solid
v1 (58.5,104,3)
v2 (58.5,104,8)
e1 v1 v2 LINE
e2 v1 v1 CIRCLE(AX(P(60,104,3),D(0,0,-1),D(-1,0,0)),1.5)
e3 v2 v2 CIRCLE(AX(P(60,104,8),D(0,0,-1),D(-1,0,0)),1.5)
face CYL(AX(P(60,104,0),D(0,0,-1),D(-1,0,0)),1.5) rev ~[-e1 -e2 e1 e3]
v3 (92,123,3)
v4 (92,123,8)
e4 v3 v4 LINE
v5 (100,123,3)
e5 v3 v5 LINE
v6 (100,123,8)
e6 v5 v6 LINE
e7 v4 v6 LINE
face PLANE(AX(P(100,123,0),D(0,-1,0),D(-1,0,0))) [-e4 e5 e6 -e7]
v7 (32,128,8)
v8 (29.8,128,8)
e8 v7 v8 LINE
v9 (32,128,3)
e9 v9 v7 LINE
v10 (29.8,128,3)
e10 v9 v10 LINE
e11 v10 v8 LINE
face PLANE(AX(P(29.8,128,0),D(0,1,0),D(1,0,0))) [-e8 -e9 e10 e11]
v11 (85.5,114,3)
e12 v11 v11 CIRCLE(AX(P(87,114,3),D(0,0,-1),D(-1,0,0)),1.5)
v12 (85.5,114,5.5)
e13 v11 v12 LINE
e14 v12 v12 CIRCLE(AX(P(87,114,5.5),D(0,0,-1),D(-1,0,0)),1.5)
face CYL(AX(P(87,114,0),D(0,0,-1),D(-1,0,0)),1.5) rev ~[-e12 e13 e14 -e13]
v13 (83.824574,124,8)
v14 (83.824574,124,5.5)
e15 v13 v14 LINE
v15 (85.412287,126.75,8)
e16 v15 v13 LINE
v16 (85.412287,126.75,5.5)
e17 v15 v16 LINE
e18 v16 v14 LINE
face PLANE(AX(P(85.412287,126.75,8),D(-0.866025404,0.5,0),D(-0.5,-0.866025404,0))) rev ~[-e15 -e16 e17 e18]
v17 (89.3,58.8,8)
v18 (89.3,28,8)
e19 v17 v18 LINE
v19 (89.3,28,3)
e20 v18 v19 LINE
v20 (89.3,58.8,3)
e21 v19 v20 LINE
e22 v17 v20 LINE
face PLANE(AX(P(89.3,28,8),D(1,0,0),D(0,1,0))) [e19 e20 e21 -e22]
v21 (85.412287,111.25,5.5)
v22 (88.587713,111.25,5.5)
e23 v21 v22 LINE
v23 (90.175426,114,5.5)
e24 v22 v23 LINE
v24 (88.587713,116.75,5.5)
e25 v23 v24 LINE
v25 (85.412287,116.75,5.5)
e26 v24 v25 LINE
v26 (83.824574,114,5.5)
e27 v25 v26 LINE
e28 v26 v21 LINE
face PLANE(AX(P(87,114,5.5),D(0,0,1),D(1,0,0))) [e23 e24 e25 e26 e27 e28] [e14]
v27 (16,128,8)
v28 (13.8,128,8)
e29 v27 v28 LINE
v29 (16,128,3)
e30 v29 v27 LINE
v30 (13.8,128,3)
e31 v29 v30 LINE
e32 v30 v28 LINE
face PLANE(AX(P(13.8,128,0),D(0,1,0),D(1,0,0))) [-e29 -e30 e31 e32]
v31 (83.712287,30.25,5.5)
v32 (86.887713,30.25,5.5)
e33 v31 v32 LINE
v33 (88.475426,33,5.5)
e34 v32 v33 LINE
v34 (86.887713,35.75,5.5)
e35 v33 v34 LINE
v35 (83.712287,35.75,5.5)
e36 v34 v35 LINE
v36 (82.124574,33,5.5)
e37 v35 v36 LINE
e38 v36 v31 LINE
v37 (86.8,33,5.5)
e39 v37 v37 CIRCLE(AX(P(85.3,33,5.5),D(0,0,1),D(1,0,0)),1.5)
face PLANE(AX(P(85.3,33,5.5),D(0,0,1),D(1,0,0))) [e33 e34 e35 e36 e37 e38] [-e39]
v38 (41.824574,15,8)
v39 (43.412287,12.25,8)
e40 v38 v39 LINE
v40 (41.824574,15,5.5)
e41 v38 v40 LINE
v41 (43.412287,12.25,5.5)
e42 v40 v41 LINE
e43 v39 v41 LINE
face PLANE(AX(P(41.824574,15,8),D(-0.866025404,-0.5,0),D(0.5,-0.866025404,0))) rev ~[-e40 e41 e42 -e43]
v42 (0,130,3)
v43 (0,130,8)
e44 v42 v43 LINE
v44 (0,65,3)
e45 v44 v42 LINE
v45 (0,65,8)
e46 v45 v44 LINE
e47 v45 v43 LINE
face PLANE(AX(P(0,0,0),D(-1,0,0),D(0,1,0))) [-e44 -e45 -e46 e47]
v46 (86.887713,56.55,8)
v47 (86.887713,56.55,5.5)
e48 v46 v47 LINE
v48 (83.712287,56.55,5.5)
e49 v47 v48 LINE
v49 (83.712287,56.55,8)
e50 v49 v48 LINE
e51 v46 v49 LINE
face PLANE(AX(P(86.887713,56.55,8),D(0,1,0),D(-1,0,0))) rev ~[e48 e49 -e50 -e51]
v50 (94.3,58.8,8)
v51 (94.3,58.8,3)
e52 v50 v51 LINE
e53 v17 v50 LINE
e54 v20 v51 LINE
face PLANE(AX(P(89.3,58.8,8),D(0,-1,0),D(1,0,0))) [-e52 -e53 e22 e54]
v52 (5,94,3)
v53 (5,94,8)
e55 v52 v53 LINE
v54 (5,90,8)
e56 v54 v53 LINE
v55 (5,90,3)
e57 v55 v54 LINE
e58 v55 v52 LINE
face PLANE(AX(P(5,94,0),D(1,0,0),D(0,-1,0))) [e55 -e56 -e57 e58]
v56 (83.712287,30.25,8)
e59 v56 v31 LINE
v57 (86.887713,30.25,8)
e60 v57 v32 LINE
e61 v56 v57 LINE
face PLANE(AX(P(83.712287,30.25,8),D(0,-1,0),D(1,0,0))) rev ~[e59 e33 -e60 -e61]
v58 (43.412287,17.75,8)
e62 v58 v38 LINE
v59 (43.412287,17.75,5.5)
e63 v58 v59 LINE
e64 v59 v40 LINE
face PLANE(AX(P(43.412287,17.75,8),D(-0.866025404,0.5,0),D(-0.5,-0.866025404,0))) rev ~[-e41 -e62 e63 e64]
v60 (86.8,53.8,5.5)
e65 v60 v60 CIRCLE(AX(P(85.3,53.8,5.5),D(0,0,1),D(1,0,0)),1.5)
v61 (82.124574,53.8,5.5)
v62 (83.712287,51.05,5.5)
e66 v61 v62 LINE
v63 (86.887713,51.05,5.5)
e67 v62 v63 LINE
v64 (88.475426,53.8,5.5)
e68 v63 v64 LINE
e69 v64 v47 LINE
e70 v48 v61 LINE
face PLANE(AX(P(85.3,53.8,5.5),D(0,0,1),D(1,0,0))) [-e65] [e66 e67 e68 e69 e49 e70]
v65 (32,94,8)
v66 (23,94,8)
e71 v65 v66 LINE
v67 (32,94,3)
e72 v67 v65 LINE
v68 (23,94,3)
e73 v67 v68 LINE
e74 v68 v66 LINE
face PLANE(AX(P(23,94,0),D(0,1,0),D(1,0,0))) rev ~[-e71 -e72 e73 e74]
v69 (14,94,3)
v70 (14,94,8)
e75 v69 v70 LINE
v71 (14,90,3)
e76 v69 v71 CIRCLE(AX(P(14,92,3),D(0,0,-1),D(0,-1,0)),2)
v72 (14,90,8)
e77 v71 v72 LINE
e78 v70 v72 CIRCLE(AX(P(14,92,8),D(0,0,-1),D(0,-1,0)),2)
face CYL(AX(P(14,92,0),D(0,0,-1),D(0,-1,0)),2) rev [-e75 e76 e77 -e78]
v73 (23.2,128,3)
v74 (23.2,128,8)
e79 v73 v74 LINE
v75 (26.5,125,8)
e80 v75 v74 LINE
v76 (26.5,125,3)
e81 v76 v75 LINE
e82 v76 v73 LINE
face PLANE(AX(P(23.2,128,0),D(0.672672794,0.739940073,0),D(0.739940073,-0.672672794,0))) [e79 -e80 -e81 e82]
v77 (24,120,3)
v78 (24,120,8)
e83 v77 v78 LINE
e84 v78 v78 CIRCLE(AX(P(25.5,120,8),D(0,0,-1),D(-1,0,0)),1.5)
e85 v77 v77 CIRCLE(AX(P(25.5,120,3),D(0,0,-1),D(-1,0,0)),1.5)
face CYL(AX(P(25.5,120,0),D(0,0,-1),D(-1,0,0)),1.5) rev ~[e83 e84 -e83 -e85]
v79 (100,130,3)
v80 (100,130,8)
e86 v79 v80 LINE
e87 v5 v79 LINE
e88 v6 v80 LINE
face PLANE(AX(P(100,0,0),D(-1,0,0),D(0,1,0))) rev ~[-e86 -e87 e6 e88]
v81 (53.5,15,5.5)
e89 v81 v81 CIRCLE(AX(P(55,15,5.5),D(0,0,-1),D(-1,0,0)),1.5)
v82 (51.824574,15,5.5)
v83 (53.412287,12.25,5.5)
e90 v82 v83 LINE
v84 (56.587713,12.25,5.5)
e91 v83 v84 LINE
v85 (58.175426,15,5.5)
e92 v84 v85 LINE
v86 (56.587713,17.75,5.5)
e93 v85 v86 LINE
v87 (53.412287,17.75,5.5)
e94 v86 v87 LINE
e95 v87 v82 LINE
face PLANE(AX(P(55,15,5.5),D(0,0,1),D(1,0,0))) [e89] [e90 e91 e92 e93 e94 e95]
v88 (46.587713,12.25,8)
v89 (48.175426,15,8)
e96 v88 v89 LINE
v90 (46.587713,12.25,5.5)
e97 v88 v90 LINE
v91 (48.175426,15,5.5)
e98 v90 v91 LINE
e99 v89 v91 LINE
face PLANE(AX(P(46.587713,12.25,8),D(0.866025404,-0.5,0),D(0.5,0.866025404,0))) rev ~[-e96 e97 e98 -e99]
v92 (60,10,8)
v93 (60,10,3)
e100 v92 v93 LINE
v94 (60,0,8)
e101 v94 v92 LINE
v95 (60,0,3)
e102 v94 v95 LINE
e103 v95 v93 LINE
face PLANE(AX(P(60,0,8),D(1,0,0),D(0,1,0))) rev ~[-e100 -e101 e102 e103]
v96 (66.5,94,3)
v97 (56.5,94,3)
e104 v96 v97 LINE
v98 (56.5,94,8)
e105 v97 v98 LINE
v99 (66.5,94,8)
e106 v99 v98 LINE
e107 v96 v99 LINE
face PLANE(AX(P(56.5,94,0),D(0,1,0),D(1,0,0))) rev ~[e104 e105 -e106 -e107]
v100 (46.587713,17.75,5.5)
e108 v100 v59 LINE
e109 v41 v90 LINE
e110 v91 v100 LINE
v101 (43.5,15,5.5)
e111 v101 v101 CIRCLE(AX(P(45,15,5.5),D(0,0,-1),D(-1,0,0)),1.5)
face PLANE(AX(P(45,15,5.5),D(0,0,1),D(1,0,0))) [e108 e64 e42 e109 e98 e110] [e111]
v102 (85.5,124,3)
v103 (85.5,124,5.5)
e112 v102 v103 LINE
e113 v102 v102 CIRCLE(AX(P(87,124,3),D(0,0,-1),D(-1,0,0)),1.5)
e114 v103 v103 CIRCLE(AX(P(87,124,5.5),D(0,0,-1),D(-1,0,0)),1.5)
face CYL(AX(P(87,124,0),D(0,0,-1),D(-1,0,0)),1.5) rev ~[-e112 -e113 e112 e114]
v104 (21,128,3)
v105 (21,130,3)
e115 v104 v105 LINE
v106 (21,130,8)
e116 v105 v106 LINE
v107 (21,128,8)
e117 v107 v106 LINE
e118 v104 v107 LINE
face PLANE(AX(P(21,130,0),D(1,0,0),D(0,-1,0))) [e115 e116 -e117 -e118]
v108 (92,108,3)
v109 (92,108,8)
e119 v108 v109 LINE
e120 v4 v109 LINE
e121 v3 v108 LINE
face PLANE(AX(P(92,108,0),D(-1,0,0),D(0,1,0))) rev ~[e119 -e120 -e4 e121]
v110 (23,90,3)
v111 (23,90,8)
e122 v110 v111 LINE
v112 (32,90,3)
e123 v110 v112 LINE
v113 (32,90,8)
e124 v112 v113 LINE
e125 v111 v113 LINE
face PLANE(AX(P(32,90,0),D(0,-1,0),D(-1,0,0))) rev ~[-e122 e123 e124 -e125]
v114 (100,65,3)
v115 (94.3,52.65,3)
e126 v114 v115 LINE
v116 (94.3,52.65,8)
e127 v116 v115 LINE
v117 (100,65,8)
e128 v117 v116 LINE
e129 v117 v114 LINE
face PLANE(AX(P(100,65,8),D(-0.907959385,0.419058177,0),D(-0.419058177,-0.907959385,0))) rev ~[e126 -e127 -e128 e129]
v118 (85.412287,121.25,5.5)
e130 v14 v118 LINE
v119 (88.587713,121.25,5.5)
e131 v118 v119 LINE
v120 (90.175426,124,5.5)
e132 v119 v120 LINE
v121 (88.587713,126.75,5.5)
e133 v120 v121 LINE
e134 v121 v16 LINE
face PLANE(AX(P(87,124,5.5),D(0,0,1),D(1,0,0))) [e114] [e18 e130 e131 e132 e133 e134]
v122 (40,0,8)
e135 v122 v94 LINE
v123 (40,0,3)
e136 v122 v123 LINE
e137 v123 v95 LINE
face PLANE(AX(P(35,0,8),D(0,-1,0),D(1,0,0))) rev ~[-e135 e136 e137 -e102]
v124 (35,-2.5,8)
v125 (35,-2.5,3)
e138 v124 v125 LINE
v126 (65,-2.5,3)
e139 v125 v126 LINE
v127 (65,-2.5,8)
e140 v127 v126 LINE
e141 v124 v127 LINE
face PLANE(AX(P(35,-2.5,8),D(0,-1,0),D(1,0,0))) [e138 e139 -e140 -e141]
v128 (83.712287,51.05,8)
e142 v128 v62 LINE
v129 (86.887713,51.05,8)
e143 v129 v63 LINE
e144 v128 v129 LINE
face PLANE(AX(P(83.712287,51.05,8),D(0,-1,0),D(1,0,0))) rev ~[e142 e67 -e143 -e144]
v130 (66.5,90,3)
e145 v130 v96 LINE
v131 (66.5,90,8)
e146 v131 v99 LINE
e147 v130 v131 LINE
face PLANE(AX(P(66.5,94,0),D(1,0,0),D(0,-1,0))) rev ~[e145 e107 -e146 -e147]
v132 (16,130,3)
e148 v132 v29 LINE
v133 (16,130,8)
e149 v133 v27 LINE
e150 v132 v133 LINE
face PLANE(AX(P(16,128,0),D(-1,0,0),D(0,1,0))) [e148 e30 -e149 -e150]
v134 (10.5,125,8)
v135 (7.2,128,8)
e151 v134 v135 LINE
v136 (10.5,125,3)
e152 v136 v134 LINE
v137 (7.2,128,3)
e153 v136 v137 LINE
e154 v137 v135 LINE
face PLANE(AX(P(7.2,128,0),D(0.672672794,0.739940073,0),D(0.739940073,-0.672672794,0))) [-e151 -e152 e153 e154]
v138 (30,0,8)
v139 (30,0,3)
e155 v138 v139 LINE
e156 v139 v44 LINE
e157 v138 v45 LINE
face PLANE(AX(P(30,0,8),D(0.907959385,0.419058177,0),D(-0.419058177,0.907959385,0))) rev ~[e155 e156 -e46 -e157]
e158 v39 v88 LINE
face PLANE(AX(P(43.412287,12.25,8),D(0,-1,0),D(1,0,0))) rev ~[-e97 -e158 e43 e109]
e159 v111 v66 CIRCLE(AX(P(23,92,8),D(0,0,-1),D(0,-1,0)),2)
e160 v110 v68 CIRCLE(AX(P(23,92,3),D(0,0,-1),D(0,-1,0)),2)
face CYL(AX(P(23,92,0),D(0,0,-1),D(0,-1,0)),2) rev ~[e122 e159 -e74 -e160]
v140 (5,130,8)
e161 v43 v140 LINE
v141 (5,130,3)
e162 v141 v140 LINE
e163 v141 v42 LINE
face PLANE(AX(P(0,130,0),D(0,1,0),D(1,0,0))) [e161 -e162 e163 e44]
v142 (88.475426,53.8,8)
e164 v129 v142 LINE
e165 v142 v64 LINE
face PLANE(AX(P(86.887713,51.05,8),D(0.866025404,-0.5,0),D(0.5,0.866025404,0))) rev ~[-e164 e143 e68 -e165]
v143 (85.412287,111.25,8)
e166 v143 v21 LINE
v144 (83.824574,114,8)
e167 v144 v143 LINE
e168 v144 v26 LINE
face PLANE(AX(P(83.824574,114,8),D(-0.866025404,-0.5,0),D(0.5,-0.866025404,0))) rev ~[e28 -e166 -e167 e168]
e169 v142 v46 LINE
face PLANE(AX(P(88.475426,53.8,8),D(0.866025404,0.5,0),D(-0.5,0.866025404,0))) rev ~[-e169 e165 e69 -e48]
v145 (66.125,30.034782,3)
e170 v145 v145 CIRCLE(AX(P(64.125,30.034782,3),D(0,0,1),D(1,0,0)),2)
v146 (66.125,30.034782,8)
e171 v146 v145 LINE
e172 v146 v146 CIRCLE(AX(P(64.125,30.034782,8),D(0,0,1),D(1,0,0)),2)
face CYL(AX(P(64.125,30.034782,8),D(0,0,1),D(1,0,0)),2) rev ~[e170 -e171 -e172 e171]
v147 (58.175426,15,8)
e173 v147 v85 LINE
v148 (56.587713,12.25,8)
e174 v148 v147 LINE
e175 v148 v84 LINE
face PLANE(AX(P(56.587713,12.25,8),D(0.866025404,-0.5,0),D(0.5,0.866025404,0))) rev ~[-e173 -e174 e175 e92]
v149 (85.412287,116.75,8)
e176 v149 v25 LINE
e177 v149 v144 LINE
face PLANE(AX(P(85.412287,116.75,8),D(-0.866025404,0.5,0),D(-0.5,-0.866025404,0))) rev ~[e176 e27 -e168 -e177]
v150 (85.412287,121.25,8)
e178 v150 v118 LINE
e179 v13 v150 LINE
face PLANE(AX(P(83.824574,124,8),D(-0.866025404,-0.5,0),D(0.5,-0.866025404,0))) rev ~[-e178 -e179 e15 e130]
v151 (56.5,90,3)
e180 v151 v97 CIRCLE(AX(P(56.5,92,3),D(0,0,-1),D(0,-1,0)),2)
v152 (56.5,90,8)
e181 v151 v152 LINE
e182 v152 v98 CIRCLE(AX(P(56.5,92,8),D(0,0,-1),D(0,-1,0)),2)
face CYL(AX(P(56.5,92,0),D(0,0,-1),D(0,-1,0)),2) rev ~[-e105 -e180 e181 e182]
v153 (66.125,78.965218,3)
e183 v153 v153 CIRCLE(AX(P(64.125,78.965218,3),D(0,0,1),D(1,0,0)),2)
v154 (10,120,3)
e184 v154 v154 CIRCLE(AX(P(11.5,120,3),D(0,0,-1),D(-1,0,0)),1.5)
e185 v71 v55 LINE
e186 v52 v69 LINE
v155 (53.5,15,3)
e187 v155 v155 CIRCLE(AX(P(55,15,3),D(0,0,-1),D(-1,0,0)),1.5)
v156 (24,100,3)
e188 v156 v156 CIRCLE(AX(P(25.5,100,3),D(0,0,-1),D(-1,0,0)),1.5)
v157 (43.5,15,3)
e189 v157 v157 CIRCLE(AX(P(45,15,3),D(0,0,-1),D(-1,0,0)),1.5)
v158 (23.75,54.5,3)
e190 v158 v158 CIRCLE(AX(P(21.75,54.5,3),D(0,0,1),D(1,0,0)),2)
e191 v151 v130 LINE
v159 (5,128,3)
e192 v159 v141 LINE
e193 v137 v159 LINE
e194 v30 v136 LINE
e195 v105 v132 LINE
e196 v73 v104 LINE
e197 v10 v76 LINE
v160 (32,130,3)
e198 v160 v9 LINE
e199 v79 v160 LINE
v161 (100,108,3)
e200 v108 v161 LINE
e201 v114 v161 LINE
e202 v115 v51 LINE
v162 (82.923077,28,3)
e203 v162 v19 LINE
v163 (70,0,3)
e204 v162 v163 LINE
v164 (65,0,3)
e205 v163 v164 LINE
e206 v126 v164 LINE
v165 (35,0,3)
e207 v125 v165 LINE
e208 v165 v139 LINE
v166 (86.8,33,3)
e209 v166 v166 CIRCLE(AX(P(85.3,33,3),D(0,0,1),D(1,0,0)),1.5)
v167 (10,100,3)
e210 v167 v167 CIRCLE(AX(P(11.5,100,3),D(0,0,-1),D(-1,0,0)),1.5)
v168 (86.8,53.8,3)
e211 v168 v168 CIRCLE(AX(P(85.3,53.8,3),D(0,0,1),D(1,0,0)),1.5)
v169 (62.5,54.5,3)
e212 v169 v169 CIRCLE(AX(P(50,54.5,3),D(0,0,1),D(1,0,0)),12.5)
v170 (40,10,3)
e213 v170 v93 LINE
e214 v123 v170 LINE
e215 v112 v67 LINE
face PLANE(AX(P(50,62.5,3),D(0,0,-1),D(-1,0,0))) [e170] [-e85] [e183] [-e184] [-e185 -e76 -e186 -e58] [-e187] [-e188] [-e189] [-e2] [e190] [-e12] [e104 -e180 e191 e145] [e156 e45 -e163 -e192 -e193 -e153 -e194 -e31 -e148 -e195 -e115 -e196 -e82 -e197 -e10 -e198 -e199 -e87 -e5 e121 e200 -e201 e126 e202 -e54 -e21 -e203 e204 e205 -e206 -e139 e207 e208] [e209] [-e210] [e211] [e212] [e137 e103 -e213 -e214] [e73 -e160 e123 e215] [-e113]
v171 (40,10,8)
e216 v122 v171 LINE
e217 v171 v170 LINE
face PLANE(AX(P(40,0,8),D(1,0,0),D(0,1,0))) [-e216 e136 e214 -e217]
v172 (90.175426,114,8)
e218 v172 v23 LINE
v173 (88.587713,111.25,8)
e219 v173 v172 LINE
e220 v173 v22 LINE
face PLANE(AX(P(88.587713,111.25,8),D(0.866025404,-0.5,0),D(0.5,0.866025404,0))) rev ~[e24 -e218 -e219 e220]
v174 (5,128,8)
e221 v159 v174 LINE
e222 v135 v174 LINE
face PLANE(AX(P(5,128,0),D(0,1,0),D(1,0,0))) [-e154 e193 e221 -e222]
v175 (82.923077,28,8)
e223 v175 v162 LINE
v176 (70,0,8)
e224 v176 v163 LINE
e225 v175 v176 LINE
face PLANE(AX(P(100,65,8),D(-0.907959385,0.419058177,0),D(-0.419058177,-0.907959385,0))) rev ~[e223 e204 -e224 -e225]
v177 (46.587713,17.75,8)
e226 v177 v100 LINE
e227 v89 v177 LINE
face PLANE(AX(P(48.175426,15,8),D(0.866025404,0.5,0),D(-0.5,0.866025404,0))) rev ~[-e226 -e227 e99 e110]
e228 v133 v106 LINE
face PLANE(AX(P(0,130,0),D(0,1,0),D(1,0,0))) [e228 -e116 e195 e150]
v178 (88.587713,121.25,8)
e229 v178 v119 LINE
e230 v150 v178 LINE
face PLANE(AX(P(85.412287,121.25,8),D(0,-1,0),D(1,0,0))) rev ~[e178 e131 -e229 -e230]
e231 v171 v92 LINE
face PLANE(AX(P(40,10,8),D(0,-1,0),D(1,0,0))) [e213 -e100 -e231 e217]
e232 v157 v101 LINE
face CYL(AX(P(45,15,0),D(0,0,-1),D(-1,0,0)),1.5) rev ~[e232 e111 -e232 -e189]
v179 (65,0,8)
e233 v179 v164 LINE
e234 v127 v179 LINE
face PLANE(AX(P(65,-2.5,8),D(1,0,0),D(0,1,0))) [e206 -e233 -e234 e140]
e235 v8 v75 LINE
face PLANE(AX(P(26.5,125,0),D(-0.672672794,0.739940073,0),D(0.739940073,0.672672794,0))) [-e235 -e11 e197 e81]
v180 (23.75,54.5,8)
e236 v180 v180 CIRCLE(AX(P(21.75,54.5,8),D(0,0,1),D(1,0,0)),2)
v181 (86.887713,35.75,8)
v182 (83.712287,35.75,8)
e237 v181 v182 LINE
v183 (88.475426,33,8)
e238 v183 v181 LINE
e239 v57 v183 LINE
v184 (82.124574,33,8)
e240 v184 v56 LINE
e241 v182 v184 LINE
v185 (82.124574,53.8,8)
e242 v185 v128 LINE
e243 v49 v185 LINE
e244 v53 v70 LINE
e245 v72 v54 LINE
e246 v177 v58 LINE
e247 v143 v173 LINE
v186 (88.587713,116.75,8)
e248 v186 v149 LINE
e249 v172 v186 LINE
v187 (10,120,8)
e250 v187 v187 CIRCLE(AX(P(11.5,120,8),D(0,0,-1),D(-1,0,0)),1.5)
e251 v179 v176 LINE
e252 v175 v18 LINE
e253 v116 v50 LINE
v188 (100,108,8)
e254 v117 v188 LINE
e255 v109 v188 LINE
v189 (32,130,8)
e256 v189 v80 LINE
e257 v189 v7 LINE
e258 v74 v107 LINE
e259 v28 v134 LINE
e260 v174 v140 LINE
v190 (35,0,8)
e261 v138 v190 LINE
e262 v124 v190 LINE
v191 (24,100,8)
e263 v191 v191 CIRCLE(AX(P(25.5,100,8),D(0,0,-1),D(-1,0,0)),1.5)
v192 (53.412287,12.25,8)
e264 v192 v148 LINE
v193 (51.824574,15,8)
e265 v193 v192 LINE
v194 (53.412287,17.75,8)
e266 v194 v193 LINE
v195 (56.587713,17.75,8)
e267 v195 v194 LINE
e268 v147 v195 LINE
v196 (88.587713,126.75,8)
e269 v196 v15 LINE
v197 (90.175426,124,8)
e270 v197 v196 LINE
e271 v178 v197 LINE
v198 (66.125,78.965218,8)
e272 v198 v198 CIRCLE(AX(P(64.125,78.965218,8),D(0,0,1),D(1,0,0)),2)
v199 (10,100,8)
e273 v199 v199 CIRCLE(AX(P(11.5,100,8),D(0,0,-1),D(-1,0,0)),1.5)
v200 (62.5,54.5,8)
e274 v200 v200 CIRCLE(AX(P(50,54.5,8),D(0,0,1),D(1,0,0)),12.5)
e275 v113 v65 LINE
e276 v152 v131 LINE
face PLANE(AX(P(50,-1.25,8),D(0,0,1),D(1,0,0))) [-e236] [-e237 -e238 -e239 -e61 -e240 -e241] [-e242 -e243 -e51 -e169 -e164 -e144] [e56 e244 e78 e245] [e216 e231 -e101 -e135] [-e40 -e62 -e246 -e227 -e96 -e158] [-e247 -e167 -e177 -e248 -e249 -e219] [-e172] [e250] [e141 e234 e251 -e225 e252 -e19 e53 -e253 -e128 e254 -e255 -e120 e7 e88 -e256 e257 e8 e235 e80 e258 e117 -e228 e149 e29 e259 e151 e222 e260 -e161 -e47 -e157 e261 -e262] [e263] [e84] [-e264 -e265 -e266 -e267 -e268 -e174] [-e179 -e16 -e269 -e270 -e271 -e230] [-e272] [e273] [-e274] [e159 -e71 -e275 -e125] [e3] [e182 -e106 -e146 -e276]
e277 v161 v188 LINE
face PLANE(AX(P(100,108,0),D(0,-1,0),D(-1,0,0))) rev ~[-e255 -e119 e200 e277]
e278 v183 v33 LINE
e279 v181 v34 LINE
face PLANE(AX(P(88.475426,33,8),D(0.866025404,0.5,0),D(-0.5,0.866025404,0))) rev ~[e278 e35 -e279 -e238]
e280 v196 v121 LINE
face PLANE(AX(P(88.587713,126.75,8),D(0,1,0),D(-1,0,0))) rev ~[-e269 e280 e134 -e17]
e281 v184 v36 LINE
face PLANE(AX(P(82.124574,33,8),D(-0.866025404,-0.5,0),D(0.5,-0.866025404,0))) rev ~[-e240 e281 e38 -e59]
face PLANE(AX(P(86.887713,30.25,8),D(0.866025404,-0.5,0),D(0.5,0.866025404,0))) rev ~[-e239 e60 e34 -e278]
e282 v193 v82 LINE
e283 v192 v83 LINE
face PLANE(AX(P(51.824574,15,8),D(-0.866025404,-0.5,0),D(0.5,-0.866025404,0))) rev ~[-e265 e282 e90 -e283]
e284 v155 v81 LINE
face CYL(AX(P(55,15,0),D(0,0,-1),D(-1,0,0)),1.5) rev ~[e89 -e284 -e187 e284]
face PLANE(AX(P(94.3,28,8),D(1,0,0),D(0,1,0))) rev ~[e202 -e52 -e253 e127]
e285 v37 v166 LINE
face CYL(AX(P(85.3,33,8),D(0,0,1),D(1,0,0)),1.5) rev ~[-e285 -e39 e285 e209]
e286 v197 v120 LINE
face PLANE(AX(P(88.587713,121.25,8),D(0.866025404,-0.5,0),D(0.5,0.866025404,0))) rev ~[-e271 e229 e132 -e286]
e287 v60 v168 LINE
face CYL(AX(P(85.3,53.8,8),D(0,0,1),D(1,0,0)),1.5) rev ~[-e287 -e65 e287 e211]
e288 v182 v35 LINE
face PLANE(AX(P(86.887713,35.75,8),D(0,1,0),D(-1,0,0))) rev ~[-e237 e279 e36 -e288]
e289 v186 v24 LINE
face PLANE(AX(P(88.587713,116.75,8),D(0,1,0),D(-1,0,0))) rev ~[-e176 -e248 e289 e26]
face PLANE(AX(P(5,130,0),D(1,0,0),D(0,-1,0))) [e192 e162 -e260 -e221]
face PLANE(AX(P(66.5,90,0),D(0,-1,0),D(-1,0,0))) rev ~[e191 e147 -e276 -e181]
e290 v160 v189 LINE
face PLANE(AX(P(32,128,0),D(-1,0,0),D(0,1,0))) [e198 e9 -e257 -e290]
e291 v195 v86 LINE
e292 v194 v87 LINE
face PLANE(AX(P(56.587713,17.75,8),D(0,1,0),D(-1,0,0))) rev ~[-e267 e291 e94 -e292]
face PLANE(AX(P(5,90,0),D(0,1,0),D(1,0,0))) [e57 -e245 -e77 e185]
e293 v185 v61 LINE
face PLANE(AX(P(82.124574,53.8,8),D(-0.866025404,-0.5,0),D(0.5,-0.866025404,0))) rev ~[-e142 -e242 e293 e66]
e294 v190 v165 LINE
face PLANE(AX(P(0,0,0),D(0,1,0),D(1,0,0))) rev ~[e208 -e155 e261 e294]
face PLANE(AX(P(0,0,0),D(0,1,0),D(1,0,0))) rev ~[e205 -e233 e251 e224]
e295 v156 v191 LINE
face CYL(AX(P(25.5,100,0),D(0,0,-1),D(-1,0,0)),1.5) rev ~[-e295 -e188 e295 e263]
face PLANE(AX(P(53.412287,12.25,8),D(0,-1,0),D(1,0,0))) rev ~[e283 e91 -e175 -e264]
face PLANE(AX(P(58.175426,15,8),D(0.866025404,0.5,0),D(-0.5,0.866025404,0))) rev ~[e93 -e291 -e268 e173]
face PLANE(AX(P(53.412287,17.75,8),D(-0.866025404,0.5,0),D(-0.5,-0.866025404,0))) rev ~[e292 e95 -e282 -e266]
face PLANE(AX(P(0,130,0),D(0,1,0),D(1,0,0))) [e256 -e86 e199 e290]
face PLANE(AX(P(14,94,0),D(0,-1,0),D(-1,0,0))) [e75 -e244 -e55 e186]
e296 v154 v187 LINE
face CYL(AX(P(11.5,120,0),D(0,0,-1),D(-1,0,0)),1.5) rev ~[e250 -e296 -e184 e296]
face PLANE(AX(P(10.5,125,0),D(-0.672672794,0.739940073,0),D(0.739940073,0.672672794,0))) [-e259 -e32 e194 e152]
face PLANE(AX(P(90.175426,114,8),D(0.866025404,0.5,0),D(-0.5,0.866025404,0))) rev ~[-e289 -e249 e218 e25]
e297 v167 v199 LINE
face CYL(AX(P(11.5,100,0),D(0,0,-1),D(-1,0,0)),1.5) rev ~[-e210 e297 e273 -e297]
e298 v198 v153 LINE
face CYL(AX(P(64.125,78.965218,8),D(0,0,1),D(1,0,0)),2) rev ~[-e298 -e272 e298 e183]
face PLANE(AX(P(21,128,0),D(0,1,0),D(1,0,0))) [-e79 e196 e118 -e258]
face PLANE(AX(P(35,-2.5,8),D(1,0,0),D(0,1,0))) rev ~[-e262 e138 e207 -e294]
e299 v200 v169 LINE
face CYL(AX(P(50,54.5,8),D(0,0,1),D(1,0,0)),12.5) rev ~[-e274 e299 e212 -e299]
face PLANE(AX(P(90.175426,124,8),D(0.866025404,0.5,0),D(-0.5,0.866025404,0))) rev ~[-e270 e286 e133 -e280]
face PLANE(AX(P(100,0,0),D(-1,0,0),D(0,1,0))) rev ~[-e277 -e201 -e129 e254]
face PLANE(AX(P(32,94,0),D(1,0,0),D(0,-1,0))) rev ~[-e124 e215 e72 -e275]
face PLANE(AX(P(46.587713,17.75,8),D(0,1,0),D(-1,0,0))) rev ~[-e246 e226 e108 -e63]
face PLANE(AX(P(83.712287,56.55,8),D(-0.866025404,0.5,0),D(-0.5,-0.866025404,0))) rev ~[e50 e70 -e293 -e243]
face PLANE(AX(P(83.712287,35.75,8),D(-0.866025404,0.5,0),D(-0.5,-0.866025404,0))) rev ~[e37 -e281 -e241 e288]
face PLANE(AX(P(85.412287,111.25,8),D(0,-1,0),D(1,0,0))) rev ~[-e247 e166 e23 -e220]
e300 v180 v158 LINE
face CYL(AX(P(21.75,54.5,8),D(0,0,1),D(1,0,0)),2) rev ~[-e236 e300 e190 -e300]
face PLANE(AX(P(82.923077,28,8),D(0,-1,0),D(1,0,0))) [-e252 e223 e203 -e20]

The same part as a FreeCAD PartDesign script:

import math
import FreeCAD as App
import Part
import Sketcher
Q = App.Units.Quantity


def add_polygon(sketch, points):
    """Adds a closed chain of lines whose ends are joined by coincident constraints."""
    first, n = sketch.GeometryCount, len(points)
    for a, b in zip(points, points[1:] + points[:1]):
        sketch.addGeometry(Part.LineSegment(App.Vector(*a, 0), App.Vector(*b, 0)), False)
    for i in range(n):
        sketch.addConstraint(Sketcher.Constraint("Coincident", first + i, 2, first + (i + 1) % n, 1))

doc = App.newDocument("Part")
params = doc.addObject("Spreadsheet::Sheet", "Params")
for row, (alias, value) in enumerate([
    ("sketch1_width", "100 mm"),
    ("sketch1_height", "130 mm"),
    ("pad1_length", "8 mm"),
    ("sketch2_width", "20 mm"),
    ("sketch2_width2", "30 mm"),
    ("sketch2_height", "10 mm"),
    ("sketch2_height2", "65 mm"),
    ("pocket1_length", "8 mm"),
    ("sketch3_diameter", "3 mm"),
    ("sketch3_radius", "2 mm"),
    ("sketch3_width", "10 mm"),
    ("sketch3_width2", "8 mm"),
    ("sketch3_width3", "9 mm"),
    ("pocket3_length", "2.5 mm"),
    ("sketch5_diameter", "25 mm"),
    ("sketch5_width", "5 mm"),
    ("sketch5_height", "30.8 mm"),
    ("pad2_length", "8 mm"),
    ("sketch7_diameter", "4 mm"),
    ("sketch7_diameter2", "3 mm"),
    ("sketch8_width", "30 mm"),
    ("sketch8_height", "2.5 mm"),
    ("pad3_length", "8 mm"),
    ("pocket6_length", "2.5 mm"),
    ("sketch10_width", "100 mm"),
    ("sketch10_height", "135 mm"),
    ("pocket7_length", "3 mm"),
], start=1):
    params.set(f"A{row}", alias)
    params.set(f"B{row}", "=" + value)
    params.setAlias(f"B{row}", alias)

body = doc.addObject("PartDesign::Body", "Body")

# Sketch on XY plane
sketch1 = body.newObject("Sketcher::SketchObject", "Sketch")
sketch1.AttachmentSupport = (doc.getObject("XY_Plane"), [""])
sketch1.MapMode = "FlatFace"
add_polygon(sketch1, [(0, 130), (0, 0), (100, 0), (100, 130)])  # lines 0-3
sketch1.addConstraint([
    Sketcher.Constraint("Vertical", 0),
    Sketcher.Constraint("Horizontal", 1),
    Sketcher.Constraint("Vertical", 2),
    Sketcher.Constraint("Horizontal", 3),
    Sketcher.Constraint("Coincident", 0, 2, -1, 1),
    Sketcher.Constraint("DistanceX", 1, 1, 1, 2, Q("100 mm")),
    Sketcher.Constraint("DistanceY", 0, 2, 0, 1, Q("130 mm")),
])
sketch1.setExpression("Constraints[9]", "Params.sketch1_width")
sketch1.setExpression("Constraints[10]", "Params.sketch1_height")
pad1 = body.newObject("PartDesign::Pad", "Pad")
pad1.Profile = sketch1
pad1.setExpression("Length", "Params.pad1_length")

# Sketch on XY plane
sketch2 = body.newObject("Sketcher::SketchObject", "Sketch001")
sketch2.AttachmentSupport = (doc.getObject("XY_Plane"), [""])
sketch2.MapMode = "FlatFace"
sketch2.AttachmentOffset = App.Placement(App.Vector(0, 0, 8), App.Rotation())
add_polygon(sketch2, [(40, 10), (40, 0), (60, 0), (60, 10)])  # lines 0-3
add_polygon(sketch2, [(0, 0), (30, 0), (0, 65)])  # lines 4-6
add_polygon(sketch2, [(100, 0), (100, 65), (70, 0)])  # lines 7-9
sketch2.addConstraint([
    Sketcher.Constraint("Vertical", 0),
    Sketcher.Constraint("Horizontal", 1),
    Sketcher.Constraint("Vertical", 2),
    Sketcher.Constraint("Horizontal", 3),
    Sketcher.Constraint("Horizontal", 4),
    Sketcher.Constraint("Vertical", 6),
    Sketcher.Constraint("Vertical", 7),
    Sketcher.Constraint("Horizontal", 9),
    Sketcher.Constraint("Coincident", 6, 2, -1, 1),
    Sketcher.Constraint("PointOnObject", 0, 2, -1),
    Sketcher.Constraint("PointOnObject", 8, 2, -1),
    Sketcher.Constraint("Horizontal", 5, 2, 7, 2),
    Sketcher.Constraint("Equal", 4, 9),
    Sketcher.Constraint("DistanceX", 1, 1, 1, 2, Q("20 mm")),
    Sketcher.Constraint("DistanceX", 4, 1, 4, 2, Q("30 mm")),
    Sketcher.Constraint("DistanceY", 0, 2, 0, 1, Q("10 mm")),
    Sketcher.Constraint("DistanceY", 6, 2, 6, 1, Q("65 mm")),
    Sketcher.Constraint("DistanceX", -1, 1, 0, 2, Q("40 mm")),
    Sketcher.Constraint("DistanceX", -1, 1, 7, 2, Q("100 mm")),
])
sketch2.setExpression("Constraints[23]", "Params.sketch2_width")
sketch2.setExpression("Constraints[24]", "Params.sketch2_width2")
sketch2.setExpression("Constraints[25]", "Params.sketch2_height")
sketch2.setExpression("Constraints[26]", "Params.sketch2_height2")
pocket1 = body.newObject("PartDesign::Pocket", "Pocket")
pocket1.Profile = sketch2
pocket1.setExpression("Length", "Params.pocket1_length")

# Sketch on XY plane
sketch3 = body.newObject("Sketcher::SketchObject", "Sketch002")
sketch3.AttachmentSupport = (doc.getObject("XY_Plane"), [""])
sketch3.MapMode = "FlatFace"
sketch3.addGeometry(Part.Circle(App.Vector(87, 124, 0), App.Vector(0, 0, 1), 1.5), False)  # 0
sketch3.addGeometry(Part.Circle(App.Vector(25.5, 100, 0), App.Vector(0, 0, 1), 1.5), False)  # 1
sketch3.addGeometry(Part.Circle(App.Vector(11.5, 100, 0), App.Vector(0, 0, 1), 1.5), False)  # 2
sketch3.addGeometry(Part.Circle(App.Vector(11.5, 120, 0), App.Vector(0, 0, 1), 1.5), False)  # 3
sketch3.addGeometry(Part.Circle(App.Vector(25.5, 120, 0), App.Vector(0, 0, 1), 1.5), False)  # 4
sketch3.addGeometry(Part.Circle(App.Vector(60, 104, 0), App.Vector(0, 0, 1), 1.5), False)  # 5
sketch3.addGeometry(Part.Circle(App.Vector(45, 15, 0), App.Vector(0, 0, 1), 1.5), False)  # 6
sketch3.addGeometry(Part.Circle(App.Vector(55, 15, 0), App.Vector(0, 0, 1), 1.5), False)  # 7
sketch3.addGeometry(Part.Circle(App.Vector(87, 114, 0), App.Vector(0, 0, 1), 1.5), False)  # 8
sketch3.addGeometry(Part.LineSegment(App.Vector(56.5, 94, 0), App.Vector(66.5, 94, 0)), False)  # 9
sketch3.addGeometry(Part.LineSegment(App.Vector(66.5, 94, 0), App.Vector(66.5, 90, 0)), False)  # 10
sketch3.addGeometry(Part.LineSegment(App.Vector(66.5, 90, 0), App.Vector(56.5, 90, 0)), False)  # 11
sketch3.addGeometry(Part.ArcOfCircle(Part.Circle(App.Vector(56.5, 92, 0), App.Vector(0, 0, 1), 2), math.radians(90), math.radians(270)), False)  # 12
add_polygon(sketch3, [(100, 123), (100, 108), (92, 108), (92, 123)])  # lines 13-16
sketch3.addGeometry(Part.LineSegment(App.Vector(32, 94, 0), App.Vector(32, 90, 0)), False)  # 17
sketch3.addGeometry(Part.LineSegment(App.Vector(32, 90, 0), App.Vector(23, 90, 0)), False)  # 18
sketch3.addGeometry(Part.ArcOfCircle(Part.Circle(App.Vector(23, 92, 0), App.Vector(0, 0, 1), 2), math.radians(90), math.radians(270)), False)  # 19
sketch3.addGeometry(Part.LineSegment(App.Vector(23, 94, 0), App.Vector(32, 94, 0)), False)  # 20
sketch3.addGeometry(Part.LineSegment(App.Vector(5, 90, 0), App.Vector(5, 94, 0)), False)  # 21
sketch3.addGeometry(Part.LineSegment(App.Vector(5, 94, 0), App.Vector(14, 94, 0)), False)  # 22
sketch3.addGeometry(Part.ArcOfCircle(Part.Circle(App.Vector(14, 92, 0), App.Vector(0, 0, 1), 2), math.radians(-90), math.radians(90)), False)  # 23
sketch3.addGeometry(Part.LineSegment(App.Vector(14, 90, 0), App.Vector(5, 90, 0)), False)  # 24
add_polygon(sketch3, [(13.8, 128), (10.5, 125), (7.2, 128), (5, 128), (5, 130), (16, 130), (16, 128)])  # lines 25-31
add_polygon(sketch3, [(29.8, 128), (26.5, 125), (23.2, 128), (21, 128), (21, 130), (32, 130), (32, 128)])  # lines 32-38
sketch3.addConstraint([
    Sketcher.Constraint("Coincident", 9, 2, 10, 1),
    Sketcher.Constraint("Coincident", 10, 2, 11, 1),
    Sketcher.Constraint("Tangent", 11, 2, 12, 2),
    Sketcher.Constraint("Tangent", 12, 1, 9, 1),
    Sketcher.Constraint("Coincident", 17, 2, 18, 1),
    Sketcher.Constraint("Tangent", 18, 2, 19, 2),
    Sketcher.Constraint("Tangent", 19, 1, 20, 1),
    Sketcher.Constraint("Coincident", 20, 2, 17, 1),
    Sketcher.Constraint("Coincident", 21, 2, 22, 1),
    Sketcher.Constraint("Tangent", 22, 2, 23, 2),
    Sketcher.Constraint("Tangent", 23, 1, 24, 1),
    Sketcher.Constraint("Coincident", 24, 2, 21, 1),
    Sketcher.Constraint("Horizontal", 9),
    Sketcher.Constraint("Vertical", 10),
    Sketcher.Constraint("Horizontal", 11),
    Sketcher.Constraint("Vertical", 13),
    Sketcher.Constraint("Horizontal", 14),
    Sketcher.Constraint("Vertical", 15),
    Sketcher.Constraint("Horizontal", 16),
    Sketcher.Constraint("Vertical", 17),
    Sketcher.Constraint("Horizontal", 18),
    Sketcher.Constraint("Horizontal", 20),
    Sketcher.Constraint("Vertical", 21),
    Sketcher.Constraint("Horizontal", 22),
    Sketcher.Constraint("Horizontal", 24),
    Sketcher.Constraint("Horizontal", 27),
    Sketcher.Constraint("Vertical", 28),
    Sketcher.Constraint("Horizontal", 29),
    Sketcher.Constraint("Vertical", 30),
    Sketcher.Constraint("Horizontal", 31),
    Sketcher.Constraint("Horizontal", 34),
    Sketcher.Constraint("Vertical", 35),
    Sketcher.Constraint("Horizontal", 36),
    Sketcher.Constraint("Vertical", 37),
    Sketcher.Constraint("Horizontal", 38),
    Sketcher.Constraint("Equal", 0, 1),
    Sketcher.Constraint("Equal", 1, 2),
    Sketcher.Constraint("Equal", 2, 3),
    Sketcher.Constraint("Equal", 3, 4),
    Sketcher.Constraint("Equal", 4, 5),
    Sketcher.Constraint("Equal", 5, 6),
    Sketcher.Constraint("Equal", 6, 7),
    Sketcher.Constraint("Equal", 7, 8),
    Sketcher.Constraint("Equal", 12, 19),
    Sketcher.Constraint("Equal", 19, 23),
    Sketcher.Constraint("Parallel", 25, 32),
    Sketcher.Constraint("Parallel", 26, 33),
    Sketcher.Constraint("Horizontal", 1, 3, 2, 3),
    Sketcher.Constraint("Horizontal", 3, 3, 4, 3),
    Sketcher.Constraint("Horizontal", 6, 3, 7, 3),
    Sketcher.Constraint("Horizontal", 12, 3, 19, 3),
    Sketcher.Constraint("Horizontal", 19, 3, 23, 3),
    Sketcher.Constraint("Horizontal", 27, 2, 30, 2),
    Sketcher.Constraint("Horizontal", 25, 2, 32, 2),
    Sketcher.Constraint("Horizontal", 31, 2, 33, 2),
    Sketcher.Constraint("Horizontal", 29, 2, 35, 2),
    Sketcher.Constraint("Horizontal", 34, 2, 37, 2),
    Sketcher.Constraint("Vertical", 2, 3, 3, 3),
    Sketcher.Constraint("Vertical", 1, 3, 4, 3),
    Sketcher.Constraint("Vertical", 0, 3, 8, 3),
    Sketcher.Constraint("Vertical", 24, 2, 27, 2),
    Sketcher.Constraint("Vertical", 20, 2, 36, 2),
    Sketcher.Constraint("Equal", 20, 22),
    Sketcher.Constraint("Equal", 27, 31),
    Sketcher.Constraint("Equal", 31, 34),
    Sketcher.Constraint("Equal", 29, 36),
    Sketcher.Constraint("Equal", 25, 26),
    Sketcher.Constraint("Diameter", 0, Q("3 mm")),
    Sketcher.Constraint("Radius", 12, Q("2 mm")),
    Sketcher.Constraint("DistanceX", 9, 1, 9, 2, Q("10 mm")),
    Sketcher.Constraint("DistanceX", 14, 2, 14, 1, Q("8 mm")),
    Sketcher.Constraint("DistanceX", 18, 2, 18, 1, Q("9 mm")),
    Sketcher.Constraint("DistanceX", 29, 1, 29, 2, Q("11 mm")),
    Sketcher.Constraint("DistanceY", 13, 2, 13, 1, Q("15 mm")),
    Sketcher.Constraint("DistanceY", 28, 1, 28, 2, Q("2 mm")),
    Sketcher.Constraint("DistanceX", 27, 2, 27, 1, Q("2.2 mm")),
    Sketcher.Constraint("DistanceX", -1, 1, 0, 3, Q("87 mm")),
    Sketcher.Constraint("DistanceY", -1, 1, 0, 3, Q("124 mm")),
    Sketcher.Constraint("DistanceY", -1, 1, 1, 3, Q("100 mm")),
    Sketcher.Constraint("DistanceY", -1, 1, 3, 3, Q("120 mm")),
    Sketcher.Constraint("DistanceX", -1, 1, 5, 3, Q("60 mm")),
    Sketcher.Constraint("DistanceY", -1, 1, 5, 3, Q("104 mm")),
    Sketcher.Constraint("DistanceX", -1, 1, 6, 3, Q("45 mm")),
    Sketcher.Constraint("DistanceY", -1, 1, 6, 3, Q("15 mm")),
    Sketcher.Constraint("DistanceX", -1, 1, 7, 3, Q("55 mm")),
    Sketcher.Constraint("DistanceY", -1, 1, 8, 3, Q("114 mm")),
    Sketcher.Constraint("DistanceY", -1, 1, 12, 3, Q("92 mm")),
    Sketcher.Constraint("DistanceX", -1, 1, 19, 3, Q("23 mm")),
    Sketcher.Constraint("DistanceX", -1, 1, 23, 3, Q("14 mm")),
    Sketcher.Constraint("DistanceX", -1, 1, 13, 2, Q("100 mm")),
    Sketcher.Constraint("DistanceY", -1, 1, 13, 2, Q("108 mm")),
    Sketcher.Constraint("DistanceY", -1, 1, 25, 2, Q("125 mm")),
    Sketcher.Constraint("DistanceY", -1, 1, 26, 2, Q("128 mm")),
    Sketcher.Constraint("DistanceX", 2, 3, 1, 3, Q("14 mm")),
    Sketcher.Constraint("DistanceX", 1, 3, 12, 3, Q("31 mm")),
    Sketcher.Constraint("DistanceX", 25, 2, 3, 3, Q("1 mm")),
])
sketch3.setExpression("Constraints[85]", "Params.sketch3_diameter")
sketch3.setExpression("Constraints[86]", "Params.sketch3_radius")
sketch3.setExpression("Constraints[87]", "Params.sketch3_width")
sketch3.setExpression("Constraints[88]", "Params.sketch3_width2")
sketch3.setExpression("Constraints[89]", "Params.sketch3_width3")
pocket2 = body.newObject("PartDesign::Pocket", "Pocket001")
pocket2.Profile = sketch3
pocket2.Type = "ThroughAll"
pocket2.Reversed = True

# Sketch on XY plane
sketch4 = body.newObject("Sketcher::SketchObject", "Sketch003")
sketch4.AttachmentSupport = (doc.getObject("XY_Plane"), [""])
sketch4.MapMode = "FlatFace"
sketch4.AttachmentOffset = App.Placement(App.Vector(0, 0, 8), App.Rotation())
add_polygon(sketch4, [(90.2, 124), (88.6, 126.8), (85.4, 126.8), (83.8, 124), (85.4, 121.2), (88.6, 121.2)])  # lines 0-5
add_polygon(sketch4, [(90.2, 114), (88.6, 116.8), (85.4, 116.8), (83.8, 114), (85.4, 111.2), (88.6, 111.2)])  # lines 6-11
add_polygon(sketch4, [(48.2, 15), (46.6, 17.8), (43.4, 17.8), (41.8, 15), (43.4, 12.2), (46.6, 12.2)])  # lines 12-17
add_polygon(sketch4, [(58.2, 15), (56.6, 17.8), (53.4, 17.8), (51.8, 15), (53.4, 12.2), (56.6, 12.2)])  # lines 18-23
sketch4.addConstraint([
    Sketcher.Constraint("Horizontal", 1),
    Sketcher.Constraint("Horizontal", 4),
    Sketcher.Constraint("Horizontal", 7),
    Sketcher.Constraint("Horizontal", 10),
    Sketcher.Constraint("Horizontal", 13),
    Sketcher.Constraint("Horizontal", 16),
    Sketcher.Constraint("Horizontal", 19),
    Sketcher.Constraint("Horizontal", 22),
    Sketcher.Constraint("Parallel", 0, 3),
    Sketcher.Constraint("Parallel", 2, 5),
    Sketcher.Constraint("Parallel", 3, 6),
    Sketcher.Constraint("Parallel", 5, 8),
    Sketcher.Constraint("Parallel", 6, 9),
    Sketcher.Constraint("Parallel", 8, 11),
    Sketcher.Constraint("Parallel", 9, 12),
    Sketcher.Constraint("Parallel", 11, 14),
    Sketcher.Constraint("Parallel", 12, 15),
    Sketcher.Constraint("Parallel", 14, 17),
    Sketcher.Constraint("Parallel", 15, 18),
    Sketcher.Constraint("Parallel", 17, 20),
    Sketcher.Constraint("Parallel", 18, 21),
    Sketcher.Constraint("Parallel", 20, 23),
    Sketcher.Constraint("Horizontal", 2, 2, 5, 2),
    Sketcher.Constraint("Horizontal", 8, 2, 11, 2),
    Sketcher.Constraint("Horizontal", 14, 2, 17, 2),
    Sketcher.Constraint("Horizontal", 13, 2, 18, 2),
    Sketcher.Constraint("Horizontal", 17, 2, 20, 2),
    Sketcher.Constraint("Horizontal", 16, 2, 21, 2),
    Sketcher.Constraint("Horizontal", 20, 2, 23, 2),
    Sketcher.Constraint("Vertical", 1, 2, 3, 2),
    Sketcher.Constraint("Vertical", 0, 2, 4, 2),
    Sketcher.Constraint("Vertical", 4, 2, 6, 2),
    Sketcher.Constraint("Vertical", 3, 2, 7, 2),
    Sketcher.Constraint("Vertical", 2, 2, 8, 2),
    Sketcher.Constraint("Vertical", 7, 2, 9, 2),
    Sketcher.Constraint("Vertical", 13, 2, 15, 2),
    Sketcher.Constraint("Equal", 10, 13),
    Sketcher.Constraint("Equal", 16, 19),
    Sketcher.Constraint("Equal", 11, 12),
    Sketcher.Constraint("Angle", 0, Q("120 deg")),
    Sketcher.Constraint("DistanceY", -1, 1, 2, 2, Q("124 mm")),
    Sketcher.Constraint("DistanceY", -1, 1, 8, 2, Q("114 mm")),
    Sketcher.Constraint("DistanceY", -1, 1, 14, 2, Q("15 mm")),
    Sketcher.Constraint("DistanceX", 12, 2, 10, 2, Q("42 mm")),
    Sketcher.Constraint("DistanceX", 12, 2, 18, 2, Q("10 mm")),
    Sketcher.Constraint("DistanceY", 3, 2, 1, 2, Q("5.5 mm")),
    Sketcher.Constraint("DistanceX", 1, 2, 1, 1, Q("3.175426 mm")),
    Sketcher.Constraint("DistanceX", -1, 1, 0, 2, Q("88.587713 mm")),
])
pocket3 = body.newObject("PartDesign::Pocket", "Pocket002")
pocket3.Profile = sketch4
pocket3.setExpression("Length", "Params.pocket3_length")

# Sketch on XY plane
sketch5 = body.newObject("Sketcher::SketchObject", "Sketch004")
sketch5.AttachmentSupport = (doc.getObject("XY_Plane"), [""])
sketch5.MapMode = "FlatFace"
sketch5.AttachmentOffset = App.Placement(App.Vector(0, 0, 8), App.Rotation())
sketch5.addGeometry(Part.Circle(App.Vector(50, 54, 0), App.Vector(0, 0, 1), 12), False)  # 0
add_polygon(sketch5, [(89, 59), (89, 28), (94, 28), (94, 59)])  # lines 1-4
sketch5.addConstraint([
    Sketcher.Constraint("Vertical", 1),
    Sketcher.Constraint("Horizontal", 2),
    Sketcher.Constraint("Vertical", 3),
    Sketcher.Constraint("Horizontal", 4),
    Sketcher.Constraint("Diameter", 0, Q("25 mm")),
    Sketcher.Constraint("DistanceX", 2, 1, 2, 2, Q("5 mm")),
    Sketcher.Constraint("DistanceY", 1, 2, 1, 1, Q("30.8 mm")),
    Sketcher.Constraint("DistanceX", -1, 1, 0, 3, Q("50 mm")),
    Sketcher.Constraint("DistanceY", -1, 1, 1, 2, Q("28 mm")),
    Sketcher.Constraint("DistanceY", -1, 1, 0, 3, Q("54.5 mm")),
    Sketcher.Constraint("DistanceX", -1, 1, 1, 2, Q("89.3 mm")),
])
sketch5.setExpression("Constraints[8]", "Params.sketch5_diameter")
sketch5.setExpression("Constraints[9]", "Params.sketch5_width")
sketch5.setExpression("Constraints[10]", "Params.sketch5_height")
pocket4 = body.newObject("PartDesign::Pocket", "Pocket003")
pocket4.Profile = sketch5
pocket4.Type = "ThroughAll"

# Sketch on XY plane
sketch6 = body.newObject("Sketcher::SketchObject", "Sketch005")
sketch6.AttachmentSupport = (doc.getObject("XY_Plane"), [""])
sketch6.MapMode = "FlatFace"
sketch6.AttachmentOffset = App.Placement(App.Vector(0, 0, 8), App.Rotation())
add_polygon(sketch6, [(89, 42), (83, 28), (89, 28)])  # lines 0-2
sketch6.addConstraint([
    Sketcher.Constraint("Horizontal", 1),
    Sketcher.Constraint("Vertical", 2),
    Sketcher.Constraint("DistanceY", -1, 1, 0, 2, Q("28 mm")),
    Sketcher.Constraint("DistanceX", -1, 1, 1, 2, Q("89.3 mm")),
    Sketcher.Constraint("DistanceX", 1, 1, 1, 2, Q("6.376923 mm")),
    Sketcher.Constraint("DistanceY", 2, 1, 2, 2, Q("13.816667 mm")),
])
pad2 = body.newObject("PartDesign::Pad", "Pad001")
pad2.Profile = sketch6
pad2.setExpression("Length", "Params.pad2_length")
pad2.Reversed = True

# Sketch on XY plane
sketch7 = body.newObject("Sketcher::SketchObject", "Sketch006")
sketch7.AttachmentSupport = (doc.getObject("XY_Plane"), [""])
sketch7.MapMode = "FlatFace"
sketch7.AttachmentOffset = App.Placement(App.Vector(0, 0, 8), App.Rotation())
sketch7.addGeometry([
    Part.Circle(App.Vector(21.8, 54.5, 0), App.Vector(0, 0, 1), 2),  # 0
    Part.Circle(App.Vector(64.1, 79, 0), App.Vector(0, 0, 1), 2),  # 1
    Part.Circle(App.Vector(64.1, 30, 0), App.Vector(0, 0, 1), 2),  # 2
    Part.Circle(App.Vector(85.3, 53.8, 0), App.Vector(0, 0, 1), 1.5),  # 3
    Part.Circle(App.Vector(85.3, 33, 0), App.Vector(0, 0, 1), 1.5),  # 4
], False)
sketch7.addConstraint([
    Sketcher.Constraint("Equal", 0, 1),
    Sketcher.Constraint("Equal", 1, 2),
    Sketcher.Constraint("Equal", 3, 4),
    Sketcher.Constraint("Vertical", 1, 3, 2, 3),
    Sketcher.Constraint("Vertical", 3, 3, 4, 3),
    Sketcher.Constraint("Diameter", 0, Q("4 mm")),
    Sketcher.Constraint("Diameter", 3, Q("3 mm")),
    Sketcher.Constraint("DistanceY", -1, 1, 4, 3, Q("33 mm")),
    Sketcher.Constraint("DistanceY", -1, 1, 0, 3, Q("54.5 mm")),
    Sketcher.Constraint("DistanceX", -1, 1, 3, 3, Q("85.3 mm")),
    Sketcher.Constraint("DistanceY", -1, 1, 3, 3, Q("53.8 mm")),
    Sketcher.Constraint("DistanceX", -1, 1, 0, 3, Q("21.75 mm")),
    Sketcher.Constraint("DistanceX", -1, 1, 1, 3, Q("64.125 mm")),
    Sketcher.Constraint("DistanceY", -1, 1, 1, 3, Q("78.965218 mm")),
    Sketcher.Constraint("DistanceY", -1, 1, 2, 3, Q("30.034782 mm")),
])
sketch7.setExpression("Constraints[5]", "Params.sketch7_diameter")
sketch7.setExpression("Constraints[6]", "Params.sketch7_diameter2")
pocket5 = body.newObject("PartDesign::Pocket", "Pocket004")
pocket5.Profile = sketch7
pocket5.Type = "ThroughAll"

# Sketch on XY plane
sketch8 = body.newObject("Sketcher::SketchObject", "Sketch007")
sketch8.AttachmentSupport = (doc.getObject("XY_Plane"), [""])
sketch8.MapMode = "FlatFace"
sketch8.AttachmentOffset = App.Placement(App.Vector(0, 0, 8), App.Rotation())
add_polygon(sketch8, [(35, 0), (35, -2.5), (65, -2.5), (65, 0)])  # lines 0-3
sketch8.addConstraint([
    Sketcher.Constraint("Vertical", 0),
    Sketcher.Constraint("Horizontal", 1),
    Sketcher.Constraint("Vertical", 2),
    Sketcher.Constraint("Horizontal", 3),
    Sketcher.Constraint("PointOnObject", 2, 2, -1),
    Sketcher.Constraint("DistanceX", 1, 1, 1, 2, Q("30 mm")),
    Sketcher.Constraint("DistanceY", 0, 2, 0, 1, Q("2.5 mm")),
    Sketcher.Constraint("DistanceX", -1, 1, 0, 2, Q("35 mm")),
])
sketch8.setExpression("Constraints[9]", "Params.sketch8_width")
sketch8.setExpression("Constraints[10]", "Params.sketch8_height")
pad3 = body.newObject("PartDesign::Pad", "Pad002")
pad3.Profile = sketch8
pad3.setExpression("Length", "Params.pad3_length")
pad3.Reversed = True

# Sketch on XY plane
sketch9 = body.newObject("Sketcher::SketchObject", "Sketch008")
sketch9.AttachmentSupport = (doc.getObject("XY_Plane"), [""])
sketch9.MapMode = "FlatFace"
sketch9.AttachmentOffset = App.Placement(App.Vector(0, 0, 8), App.Rotation())
add_polygon(sketch9, [(88.5, 53.8), (86.9, 56.5), (83.7, 56.5), (82.1, 53.8), (83.7, 51), (86.9, 51)])  # lines 0-5
add_polygon(sketch9, [(88.5, 33), (86.9, 35.8), (83.7, 35.8), (82.1, 33), (83.7, 30.2), (86.9, 30.2)])  # lines 6-11
sketch9.addConstraint([
    Sketcher.Constraint("Horizontal", 1),
    Sketcher.Constraint("Horizontal", 4),
    Sketcher.Constraint("Horizontal", 7),
    Sketcher.Constraint("Horizontal", 10),
    Sketcher.Constraint("Parallel", 0, 3),
    Sketcher.Constraint("Parallel", 2, 5),
    Sketcher.Constraint("Parallel", 3, 6),
    Sketcher.Constraint("Parallel", 5, 8),
    Sketcher.Constraint("Parallel", 6, 9),
    Sketcher.Constraint("Parallel", 8, 11),
    Sketcher.Constraint("Horizontal", 2, 2, 5, 2),
    Sketcher.Constraint("Horizontal", 8, 2, 11, 2),
    Sketcher.Constraint("Vertical", 1, 2, 3, 2),
    Sketcher.Constraint("Vertical", 0, 2, 4, 2),
    Sketcher.Constraint("Vertical", 4, 2, 6, 2),
    Sketcher.Constraint("Vertical", 3, 2, 7, 2),
    Sketcher.Constraint("Vertical", 2, 2, 8, 2),
    Sketcher.Constraint("Vertical", 7, 2, 9, 2),
    Sketcher.Constraint("Angle", 0, Q("120 deg")),
    Sketcher.Constraint("DistanceY", -1, 1, 8, 2, Q("33 mm")),
    Sketcher.Constraint("DistanceY", -1, 1, 2, 2, Q("53.8 mm")),
    Sketcher.Constraint("DistanceY", 3, 2, 1, 2, Q("5.5 mm")),
    Sketcher.Constraint("DistanceX", 1, 2, 1, 1, Q("3.175426 mm")),
    Sketcher.Constraint("DistanceX", -1, 1, 0, 2, Q("86.887713 mm")),
])
pocket6 = body.newObject("PartDesign::Pocket", "Pocket005")
pocket6.Profile = sketch9
pocket6.setExpression("Length", "Params.pocket6_length")

# Sketch on XY plane
sketch10 = body.newObject("Sketcher::SketchObject", "Sketch009")
sketch10.AttachmentSupport = (doc.getObject("XY_Plane"), [""])
sketch10.MapMode = "FlatFace"
add_polygon(sketch10, [(100, 130), (100, -5), (0, -5), (0, 130)])  # lines 0-3
sketch10.addConstraint([
    Sketcher.Constraint("Vertical", 0),
    Sketcher.Constraint("Horizontal", 1),
    Sketcher.Constraint("Vertical", 2),
    Sketcher.Constraint("Horizontal", 3),
    Sketcher.Constraint("PointOnObject", 1, 2, -2),
    Sketcher.Constraint("DistanceX", 1, 2, 1, 1, Q("100 mm")),
    Sketcher.Constraint("DistanceY", 0, 2, 0, 1, Q("135 mm")),
    Sketcher.Constraint("DistanceY", 0, 2, -1, 1, Q("5 mm")),
])
sketch10.setExpression("Constraints[9]", "Params.sketch10_width")
sketch10.setExpression("Constraints[10]", "Params.sketch10_height")
pocket7 = body.newObject("PartDesign::Pocket", "Pocket006")
pocket7.Profile = sketch10
pocket7.setExpression("Length", "Params.pocket7_length")
pocket7.Reversed = True

doc.recompute()
